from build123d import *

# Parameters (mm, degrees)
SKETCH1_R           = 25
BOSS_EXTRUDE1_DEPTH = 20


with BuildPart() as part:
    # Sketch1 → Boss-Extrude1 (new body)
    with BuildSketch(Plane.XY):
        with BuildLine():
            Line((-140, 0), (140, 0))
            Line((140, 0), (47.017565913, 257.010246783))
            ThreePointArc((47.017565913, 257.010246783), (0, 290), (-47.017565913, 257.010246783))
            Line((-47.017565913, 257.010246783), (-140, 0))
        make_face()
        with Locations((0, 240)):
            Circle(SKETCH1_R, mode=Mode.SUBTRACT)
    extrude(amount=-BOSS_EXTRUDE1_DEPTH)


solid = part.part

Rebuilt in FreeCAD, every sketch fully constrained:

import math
import FreeCAD as App
import Part
import Sketcher
from FreeCAD import Vector

doc = App.newDocument("Part")
body = doc.addObject("PartDesign::Body", "Body")

# Sketch on XY plane
sketch1 = body.newObject("Sketcher::SketchObject", "Sketch")
sketch1.AttachmentSupport = (doc.getObject("XY_Plane"), [""])
sketch1.MapMode = "FlatFace"
sketch1.addGeometry([
    Part.LineSegment(Vector(-140, 0, 0), Vector(140, 0, 0)),  # 0
    Part.LineSegment(Vector(140, 0, 0), Vector(47, 257, 0)),  # 1
    Part.ArcOfCircle(Part.Circle(Vector(0, 240, 0), Vector(0, 0, 1), 50), math.radians(20), math.radians(160)),  # 2
    Part.LineSegment(Vector(-47, 257, 0), Vector(-140, 0, 0)),  # 3
    Part.Circle(Vector(0, 240, 0), Vector(0, 0, 1), 25),  # 4
], False)
sketch1.addConstraint([
    Sketcher.Constraint("Coincident", 0, 2, 1, 1),
    Sketcher.Constraint("Tangent", 1, 2, 2, 1),
    Sketcher.Constraint("Tangent", 2, 2, 3, 1),
    Sketcher.Constraint("Coincident", 3, 2, 0, 1),
    Sketcher.Constraint("Horizontal", 0),
    Sketcher.Constraint("Coincident", 4, 3, 2, 3),
    Sketcher.Constraint("Symmetric", 0, 2, 3, 2, -1, 1),
    Sketcher.Constraint("PointOnObject", 2, 3, -2),
    Sketcher.Constraint("Diameter", 4, 50.0),
    Sketcher.Constraint("Radius", 2, 50.0),
    Sketcher.Constraint("DistanceX", 0, 1, 0, 2, 280.0),
    Sketcher.Constraint("DistanceY", -1, 1, 2, 3, 240.0),
])
pad1 = body.newObject("PartDesign::Pad", "Pad")
pad1.Profile = sketch1
pad1.Length = 20
pad1.Reversed = True

doc.recompute()
